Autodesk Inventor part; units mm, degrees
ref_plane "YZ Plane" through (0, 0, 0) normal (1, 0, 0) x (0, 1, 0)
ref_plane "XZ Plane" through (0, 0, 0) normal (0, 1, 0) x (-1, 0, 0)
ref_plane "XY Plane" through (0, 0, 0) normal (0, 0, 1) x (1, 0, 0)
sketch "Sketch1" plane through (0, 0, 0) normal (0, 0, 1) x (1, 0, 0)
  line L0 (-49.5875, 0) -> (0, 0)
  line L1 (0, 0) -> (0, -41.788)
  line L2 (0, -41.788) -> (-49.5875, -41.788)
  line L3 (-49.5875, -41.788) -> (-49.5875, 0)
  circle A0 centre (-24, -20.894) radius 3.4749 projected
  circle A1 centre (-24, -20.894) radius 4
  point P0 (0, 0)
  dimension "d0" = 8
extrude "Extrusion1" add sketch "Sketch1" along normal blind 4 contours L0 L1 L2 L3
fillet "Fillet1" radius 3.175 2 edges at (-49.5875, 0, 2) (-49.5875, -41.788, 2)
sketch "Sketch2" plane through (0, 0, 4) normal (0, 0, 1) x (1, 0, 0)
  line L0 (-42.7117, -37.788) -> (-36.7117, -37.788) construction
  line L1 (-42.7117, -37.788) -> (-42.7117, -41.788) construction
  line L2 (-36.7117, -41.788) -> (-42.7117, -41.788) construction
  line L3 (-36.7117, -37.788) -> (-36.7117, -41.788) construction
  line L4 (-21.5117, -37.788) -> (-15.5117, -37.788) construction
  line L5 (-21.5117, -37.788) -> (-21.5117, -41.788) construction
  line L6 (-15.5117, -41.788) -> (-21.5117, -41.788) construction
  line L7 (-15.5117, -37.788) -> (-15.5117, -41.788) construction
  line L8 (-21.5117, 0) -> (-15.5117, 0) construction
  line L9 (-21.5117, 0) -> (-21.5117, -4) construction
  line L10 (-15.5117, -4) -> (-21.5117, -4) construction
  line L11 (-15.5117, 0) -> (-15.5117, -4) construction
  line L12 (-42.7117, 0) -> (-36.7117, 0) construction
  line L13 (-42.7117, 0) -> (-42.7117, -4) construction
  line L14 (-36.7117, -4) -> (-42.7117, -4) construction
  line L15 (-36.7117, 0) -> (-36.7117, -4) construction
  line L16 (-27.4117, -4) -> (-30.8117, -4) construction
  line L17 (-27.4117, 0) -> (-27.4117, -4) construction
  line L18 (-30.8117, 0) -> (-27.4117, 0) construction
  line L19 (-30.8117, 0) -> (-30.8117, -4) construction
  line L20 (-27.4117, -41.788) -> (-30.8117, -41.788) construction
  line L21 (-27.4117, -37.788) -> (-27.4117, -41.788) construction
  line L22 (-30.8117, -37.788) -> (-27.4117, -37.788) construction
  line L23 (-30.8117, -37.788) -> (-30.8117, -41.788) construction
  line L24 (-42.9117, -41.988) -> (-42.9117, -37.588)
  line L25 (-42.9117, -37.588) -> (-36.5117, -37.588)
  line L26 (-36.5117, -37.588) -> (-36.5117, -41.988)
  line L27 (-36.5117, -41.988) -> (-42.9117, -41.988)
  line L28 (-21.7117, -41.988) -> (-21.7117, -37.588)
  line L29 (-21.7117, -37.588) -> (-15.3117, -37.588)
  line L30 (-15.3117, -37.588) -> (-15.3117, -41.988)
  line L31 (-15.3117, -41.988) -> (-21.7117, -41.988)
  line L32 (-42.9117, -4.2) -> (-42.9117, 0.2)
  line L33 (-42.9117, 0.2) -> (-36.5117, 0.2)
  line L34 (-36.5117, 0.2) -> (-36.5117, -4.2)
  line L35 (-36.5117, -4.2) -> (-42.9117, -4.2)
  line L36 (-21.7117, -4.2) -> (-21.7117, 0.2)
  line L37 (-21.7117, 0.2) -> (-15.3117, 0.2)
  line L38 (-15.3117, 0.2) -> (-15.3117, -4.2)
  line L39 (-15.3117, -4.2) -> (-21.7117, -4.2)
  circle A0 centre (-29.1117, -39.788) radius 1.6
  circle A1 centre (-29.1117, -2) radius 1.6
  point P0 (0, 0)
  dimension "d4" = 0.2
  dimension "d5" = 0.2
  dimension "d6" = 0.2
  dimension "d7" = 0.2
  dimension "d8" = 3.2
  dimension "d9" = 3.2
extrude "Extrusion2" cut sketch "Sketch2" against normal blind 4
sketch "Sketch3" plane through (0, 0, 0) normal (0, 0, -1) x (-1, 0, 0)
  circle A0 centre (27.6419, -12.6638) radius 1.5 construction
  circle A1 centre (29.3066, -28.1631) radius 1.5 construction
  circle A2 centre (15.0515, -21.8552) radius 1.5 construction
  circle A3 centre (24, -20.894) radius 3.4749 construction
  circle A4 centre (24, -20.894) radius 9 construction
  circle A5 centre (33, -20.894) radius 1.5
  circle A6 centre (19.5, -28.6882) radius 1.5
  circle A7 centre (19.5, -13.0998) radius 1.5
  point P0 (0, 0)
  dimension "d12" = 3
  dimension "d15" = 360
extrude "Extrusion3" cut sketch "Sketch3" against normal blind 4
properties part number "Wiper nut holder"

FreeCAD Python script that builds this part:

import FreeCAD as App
import Part
import Sketcher
Q = App.Units.Quantity


def edges_at(feature, points):
    """Names of the edges that pass closest to the given points."""
    edges = feature.Shape.Edges
    near = lambda p: min(range(len(edges)), key=lambda i: edges[i].distToShape(Part.Vertex(*p))[0])
    return sorted({f"Edge{near(p) + 1}" for p in points})


def add_polygon(sketch, points):
    """Adds a closed chain of lines whose ends are joined by coincident constraints."""
    first, n = sketch.GeometryCount, len(points)
    for a, b in zip(points, points[1:] + points[:1]):
        sketch.addGeometry(Part.LineSegment(App.Vector(*a, 0), App.Vector(*b, 0)), False)
    for i in range(n):
        sketch.addConstraint(Sketcher.Constraint("Coincident", first + i, 2, first + (i + 1) % n, 1))

doc = App.newDocument("Part")
params = doc.addObject("Spreadsheet::Sheet", "Params")
for row, (alias, value) in enumerate([
    ("sketch1_diameter", "8 mm"),
    ("pad1_length", "4 mm"),
    ("fillet_radius", "3.175 mm"),
    ("sketch2_diameter", "3.2 mm"),
    ("sketch2_width", "6.4 mm"),
    ("sketch2_height", "4.4 mm"),
    ("pocket1_length", "4 mm"),
    ("sketch3_diameter", "3 mm"),
    ("pocket2_length", "4 mm"),
], start=1):
    params.set(f"A{row}", alias)
    params.set(f"B{row}", "=" + value)
    params.setAlias(f"B{row}", alias)

body = doc.addObject("PartDesign::Body", "Body")

# Sketch on XY plane
sketch1 = body.newObject("Sketcher::SketchObject", "Sketch")
sketch1.AttachmentSupport = (doc.getObject("XY_Plane"), [""])
sketch1.MapMode = "FlatFace"
add_polygon(sketch1, [(0, 0), (-49.6, 0), (-49.6, -41.8), (0, -41.8)])  # lines 0-3
sketch1.addGeometry(Part.Circle(App.Vector(-24, -20.9, 0), App.Vector(0, 0, 1), 4), False)  # 4
sketch1.addConstraint(Sketcher.Constraint("Horizontal", 0))
sketch1.addConstraint(Sketcher.Constraint("Vertical", 1))
sketch1.addConstraint(Sketcher.Constraint("Horizontal", 2))
sketch1.addConstraint(Sketcher.Constraint("Vertical", 3))
sketch1.addConstraint(Sketcher.Constraint("Coincident", 3, 2, -1, 1))
sketch1.addConstraint(Sketcher.Constraint("Diameter", 4, Q("8 mm")))
sketch1.addConstraint(Sketcher.Constraint("DistanceX", 4, 3, -1, 1, Q("24 mm")))
sketch1.addConstraint(Sketcher.Constraint("DistanceY", 1, 2, 1, 1, Q("41.788 mm")))
sketch1.addConstraint(Sketcher.Constraint("DistanceX", 0, 2, 0, 1, Q("49.5875 mm")))
sketch1.addConstraint(Sketcher.Constraint("DistanceY", 4, 3, -1, 1, Q("20.894 mm")))
sketch1.setExpression("Constraints[9]", "Params.sketch1_diameter")
pad1 = body.newObject("PartDesign::Pad", "Pad")
pad1.Profile = sketch1
pad1.setExpression("Length", "Params.pad1_length")
doc.recompute()

fillet = body.newObject("PartDesign::Fillet", "Fillet")
fillet.Base = (pad1, edges_at(pad1, [(-49.587, 0, 2), (-49.587, -41.788, 2)]))
fillet.setExpression("Radius", "Params.fillet_radius")

# Sketch on XY plane
sketch2 = body.newObject("Sketcher::SketchObject", "Sketch001")
sketch2.AttachmentSupport = (doc.getObject("XY_Plane"), [""])
sketch2.MapMode = "FlatFace"
sketch2.AttachmentOffset = App.Placement(App.Vector(0, 0, 4), App.Rotation())
add_polygon(sketch2, [(-42.9, -37.6), (-42.9, -42), (-36.5, -42), (-36.5, -37.6)])  # lines 0-3
add_polygon(sketch2, [(-21.7, -37.6), (-21.7, -42), (-15.3, -42), (-15.3, -37.6)])  # lines 4-7
add_polygon(sketch2, [(-42.9, 0.2), (-42.9, -4.2), (-36.5, -4.2), (-36.5, 0.2)])  # lines 8-11
add_polygon(sketch2, [(-21.7, 0.2), (-21.7, -4.2), (-15.3, -4.2), (-15.3, 0.2)])  # lines 12-15
sketch2.addGeometry(Part.Circle(App.Vector(-29.1, -39.8, 0), App.Vector(0, 0, 1), 1.6), False)  # 16
sketch2.addGeometry(Part.Circle(App.Vector(-29.1, -2, 0), App.Vector(0, 0, 1), 1.6), False)  # 17
sketch2.addConstraint(Sketcher.Constraint("Vertical", 0))
sketch2.addConstraint(Sketcher.Constraint("Horizontal", 1))
sketch2.addConstraint(Sketcher.Constraint("Vertical", 2))
sketch2.addConstraint(Sketcher.Constraint("Horizontal", 3))
sketch2.addConstraint(Sketcher.Constraint("Vertical", 4))
sketch2.addConstraint(Sketcher.Constraint("Horizontal", 5))
sketch2.addConstraint(Sketcher.Constraint("Vertical", 6))
sketch2.addConstraint(Sketcher.Constraint("Horizontal", 7))
sketch2.addConstraint(Sketcher.Constraint("Vertical", 8))
sketch2.addConstraint(Sketcher.Constraint("Horizontal", 9))
sketch2.addConstraint(Sketcher.Constraint("Vertical", 10))
sketch2.addConstraint(Sketcher.Constraint("Horizontal", 11))
sketch2.addConstraint(Sketcher.Constraint("Vertical", 12))
sketch2.addConstraint(Sketcher.Constraint("Horizontal", 13))
sketch2.addConstraint(Sketcher.Constraint("Vertical", 14))
sketch2.addConstraint(Sketcher.Constraint("Horizontal", 15))
sketch2.addConstraint(Sketcher.Constraint("Equal", 16, 17))
sketch2.addConstraint(Sketcher.Constraint("Horizontal", 1, 2, 4, 2))
sketch2.addConstraint(Sketcher.Constraint("Horizontal", 3, 2, 6, 2))
sketch2.addConstraint(Sketcher.Constraint("Horizontal", 9, 2, 12, 2))
sketch2.addConstraint(Sketcher.Constraint("Horizontal", 11, 2, 14, 2))
sketch2.addConstraint(Sketcher.Constraint("Vertical", 16, 3, 17, 3))
sketch2.addConstraint(Sketcher.Constraint("Vertical", 3, 2, 8, 2))
sketch2.addConstraint(Sketcher.Constraint("Vertical", 2, 2, 9, 2))
sketch2.addConstraint(Sketcher.Constraint("Vertical", 7, 2, 12, 2))
sketch2.addConstraint(Sketcher.Constraint("Vertical", 6, 2, 13, 2))
sketch2.addConstraint(Sketcher.Constraint("Equal", 3, 5))
sketch2.addConstraint(Sketcher.Constraint("Equal", 6, 8))
sketch2.addConstraint(Sketcher.Constraint("Diameter", 16, Q("3.2 mm")))
sketch2.addConstraint(Sketcher.Constraint("DistanceY", -1, 1, 10, 2, Q("0.2 mm")))
sketch2.addConstraint(Sketcher.Constraint("DistanceX", 1, 1, 1, 2, Q("6.4 mm")))
sketch2.addConstraint(Sketcher.Constraint("DistanceY", 0, 2, 0, 1, Q("4.4 mm")))
sketch2.addConstraint(Sketcher.Constraint("DistanceY", 17, 3, -1, 1, Q("2 mm")))
sketch2.addConstraint(Sketcher.Constraint("DistanceX", 0, 2, 16, 3, Q("13.8 mm")))
sketch2.addConstraint(Sketcher.Constraint("DistanceY", 0, 2, 16, 3, Q("2.2 mm")))
sketch2.addConstraint(Sketcher.Constraint("DistanceX", 16, 3, 4, 2, Q("7.4 mm")))
sketch2.addConstraint(Sketcher.Constraint("DistanceY", 16, 3, -1, 1, Q("39.788 mm")))
sketch2.addConstraint(Sketcher.Constraint("DistanceX", 16, 3, -1, 1, Q("29.1117 mm")))
sketch2.setExpression("Constraints[44]", "Params.sketch2_diameter")
sketch2.setExpression("Constraints[46]", "Params.sketch2_width")
sketch2.setExpression("Constraints[47]", "Params.sketch2_height")
pocket1 = body.newObject("PartDesign::Pocket", "Pocket")
pocket1.Profile = sketch2
pocket1.setExpression("Length", "Params.pocket1_length")

# Sketch on XY plane
sketch3 = body.newObject("Sketcher::SketchObject", "Sketch002")
sketch3.AttachmentSupport = (doc.getObject("XY_Plane"), [""])
sketch3.MapMode = "FlatFace"
sketch3.addGeometry(Part.Circle(App.Vector(-33, -20.9, 0), App.Vector(0, 0, 1), 1.5), False)
sketch3.addGeometry(Part.Circle(App.Vector(-19.5, -28.7, 0), App.Vector(0, 0, 1), 1.5), False)
sketch3.addGeometry(Part.Circle(App.Vector(-19.5, -13.1, 0), App.Vector(0, 0, 1), 1.5), False)
sketch3.addConstraint(Sketcher.Constraint("Equal", 0, 1))
sketch3.addConstraint(Sketcher.Constraint("Equal", 1, 2))
sketch3.addConstraint(Sketcher.Constraint("Vertical", 1, 3, 2, 3))
sketch3.addConstraint(Sketcher.Constraint("Diameter", 0, Q("3 mm")))
sketch3.addConstraint(Sketcher.Constraint("DistanceX", 0, 3, -1, 1, Q("33 mm")))
sketch3.addConstraint(Sketcher.Constraint("DistanceX", 1, 3, -1, 1, Q("19.5 mm")))
sketch3.addConstraint(Sketcher.Constraint("DistanceY", 0, 3, -1, 1, Q("20.894 mm")))
sketch3.addConstraint(Sketcher.Constraint("DistanceY", 1, 3, -1, 1, Q("28.6882 mm")))
sketch3.addConstraint(Sketcher.Constraint("DistanceY", 2, 3, -1, 1, Q("13.0998 mm")))
sketch3.setExpression("Constraints[3]", "Params.sketch3_diameter")
pocket2 = body.newObject("PartDesign::Pocket", "Pocket001")
pocket2.Profile = sketch3
pocket2.setExpression("Length", "Params.pocket2_length")
pocket2.Reversed = True

doc.recompute()
